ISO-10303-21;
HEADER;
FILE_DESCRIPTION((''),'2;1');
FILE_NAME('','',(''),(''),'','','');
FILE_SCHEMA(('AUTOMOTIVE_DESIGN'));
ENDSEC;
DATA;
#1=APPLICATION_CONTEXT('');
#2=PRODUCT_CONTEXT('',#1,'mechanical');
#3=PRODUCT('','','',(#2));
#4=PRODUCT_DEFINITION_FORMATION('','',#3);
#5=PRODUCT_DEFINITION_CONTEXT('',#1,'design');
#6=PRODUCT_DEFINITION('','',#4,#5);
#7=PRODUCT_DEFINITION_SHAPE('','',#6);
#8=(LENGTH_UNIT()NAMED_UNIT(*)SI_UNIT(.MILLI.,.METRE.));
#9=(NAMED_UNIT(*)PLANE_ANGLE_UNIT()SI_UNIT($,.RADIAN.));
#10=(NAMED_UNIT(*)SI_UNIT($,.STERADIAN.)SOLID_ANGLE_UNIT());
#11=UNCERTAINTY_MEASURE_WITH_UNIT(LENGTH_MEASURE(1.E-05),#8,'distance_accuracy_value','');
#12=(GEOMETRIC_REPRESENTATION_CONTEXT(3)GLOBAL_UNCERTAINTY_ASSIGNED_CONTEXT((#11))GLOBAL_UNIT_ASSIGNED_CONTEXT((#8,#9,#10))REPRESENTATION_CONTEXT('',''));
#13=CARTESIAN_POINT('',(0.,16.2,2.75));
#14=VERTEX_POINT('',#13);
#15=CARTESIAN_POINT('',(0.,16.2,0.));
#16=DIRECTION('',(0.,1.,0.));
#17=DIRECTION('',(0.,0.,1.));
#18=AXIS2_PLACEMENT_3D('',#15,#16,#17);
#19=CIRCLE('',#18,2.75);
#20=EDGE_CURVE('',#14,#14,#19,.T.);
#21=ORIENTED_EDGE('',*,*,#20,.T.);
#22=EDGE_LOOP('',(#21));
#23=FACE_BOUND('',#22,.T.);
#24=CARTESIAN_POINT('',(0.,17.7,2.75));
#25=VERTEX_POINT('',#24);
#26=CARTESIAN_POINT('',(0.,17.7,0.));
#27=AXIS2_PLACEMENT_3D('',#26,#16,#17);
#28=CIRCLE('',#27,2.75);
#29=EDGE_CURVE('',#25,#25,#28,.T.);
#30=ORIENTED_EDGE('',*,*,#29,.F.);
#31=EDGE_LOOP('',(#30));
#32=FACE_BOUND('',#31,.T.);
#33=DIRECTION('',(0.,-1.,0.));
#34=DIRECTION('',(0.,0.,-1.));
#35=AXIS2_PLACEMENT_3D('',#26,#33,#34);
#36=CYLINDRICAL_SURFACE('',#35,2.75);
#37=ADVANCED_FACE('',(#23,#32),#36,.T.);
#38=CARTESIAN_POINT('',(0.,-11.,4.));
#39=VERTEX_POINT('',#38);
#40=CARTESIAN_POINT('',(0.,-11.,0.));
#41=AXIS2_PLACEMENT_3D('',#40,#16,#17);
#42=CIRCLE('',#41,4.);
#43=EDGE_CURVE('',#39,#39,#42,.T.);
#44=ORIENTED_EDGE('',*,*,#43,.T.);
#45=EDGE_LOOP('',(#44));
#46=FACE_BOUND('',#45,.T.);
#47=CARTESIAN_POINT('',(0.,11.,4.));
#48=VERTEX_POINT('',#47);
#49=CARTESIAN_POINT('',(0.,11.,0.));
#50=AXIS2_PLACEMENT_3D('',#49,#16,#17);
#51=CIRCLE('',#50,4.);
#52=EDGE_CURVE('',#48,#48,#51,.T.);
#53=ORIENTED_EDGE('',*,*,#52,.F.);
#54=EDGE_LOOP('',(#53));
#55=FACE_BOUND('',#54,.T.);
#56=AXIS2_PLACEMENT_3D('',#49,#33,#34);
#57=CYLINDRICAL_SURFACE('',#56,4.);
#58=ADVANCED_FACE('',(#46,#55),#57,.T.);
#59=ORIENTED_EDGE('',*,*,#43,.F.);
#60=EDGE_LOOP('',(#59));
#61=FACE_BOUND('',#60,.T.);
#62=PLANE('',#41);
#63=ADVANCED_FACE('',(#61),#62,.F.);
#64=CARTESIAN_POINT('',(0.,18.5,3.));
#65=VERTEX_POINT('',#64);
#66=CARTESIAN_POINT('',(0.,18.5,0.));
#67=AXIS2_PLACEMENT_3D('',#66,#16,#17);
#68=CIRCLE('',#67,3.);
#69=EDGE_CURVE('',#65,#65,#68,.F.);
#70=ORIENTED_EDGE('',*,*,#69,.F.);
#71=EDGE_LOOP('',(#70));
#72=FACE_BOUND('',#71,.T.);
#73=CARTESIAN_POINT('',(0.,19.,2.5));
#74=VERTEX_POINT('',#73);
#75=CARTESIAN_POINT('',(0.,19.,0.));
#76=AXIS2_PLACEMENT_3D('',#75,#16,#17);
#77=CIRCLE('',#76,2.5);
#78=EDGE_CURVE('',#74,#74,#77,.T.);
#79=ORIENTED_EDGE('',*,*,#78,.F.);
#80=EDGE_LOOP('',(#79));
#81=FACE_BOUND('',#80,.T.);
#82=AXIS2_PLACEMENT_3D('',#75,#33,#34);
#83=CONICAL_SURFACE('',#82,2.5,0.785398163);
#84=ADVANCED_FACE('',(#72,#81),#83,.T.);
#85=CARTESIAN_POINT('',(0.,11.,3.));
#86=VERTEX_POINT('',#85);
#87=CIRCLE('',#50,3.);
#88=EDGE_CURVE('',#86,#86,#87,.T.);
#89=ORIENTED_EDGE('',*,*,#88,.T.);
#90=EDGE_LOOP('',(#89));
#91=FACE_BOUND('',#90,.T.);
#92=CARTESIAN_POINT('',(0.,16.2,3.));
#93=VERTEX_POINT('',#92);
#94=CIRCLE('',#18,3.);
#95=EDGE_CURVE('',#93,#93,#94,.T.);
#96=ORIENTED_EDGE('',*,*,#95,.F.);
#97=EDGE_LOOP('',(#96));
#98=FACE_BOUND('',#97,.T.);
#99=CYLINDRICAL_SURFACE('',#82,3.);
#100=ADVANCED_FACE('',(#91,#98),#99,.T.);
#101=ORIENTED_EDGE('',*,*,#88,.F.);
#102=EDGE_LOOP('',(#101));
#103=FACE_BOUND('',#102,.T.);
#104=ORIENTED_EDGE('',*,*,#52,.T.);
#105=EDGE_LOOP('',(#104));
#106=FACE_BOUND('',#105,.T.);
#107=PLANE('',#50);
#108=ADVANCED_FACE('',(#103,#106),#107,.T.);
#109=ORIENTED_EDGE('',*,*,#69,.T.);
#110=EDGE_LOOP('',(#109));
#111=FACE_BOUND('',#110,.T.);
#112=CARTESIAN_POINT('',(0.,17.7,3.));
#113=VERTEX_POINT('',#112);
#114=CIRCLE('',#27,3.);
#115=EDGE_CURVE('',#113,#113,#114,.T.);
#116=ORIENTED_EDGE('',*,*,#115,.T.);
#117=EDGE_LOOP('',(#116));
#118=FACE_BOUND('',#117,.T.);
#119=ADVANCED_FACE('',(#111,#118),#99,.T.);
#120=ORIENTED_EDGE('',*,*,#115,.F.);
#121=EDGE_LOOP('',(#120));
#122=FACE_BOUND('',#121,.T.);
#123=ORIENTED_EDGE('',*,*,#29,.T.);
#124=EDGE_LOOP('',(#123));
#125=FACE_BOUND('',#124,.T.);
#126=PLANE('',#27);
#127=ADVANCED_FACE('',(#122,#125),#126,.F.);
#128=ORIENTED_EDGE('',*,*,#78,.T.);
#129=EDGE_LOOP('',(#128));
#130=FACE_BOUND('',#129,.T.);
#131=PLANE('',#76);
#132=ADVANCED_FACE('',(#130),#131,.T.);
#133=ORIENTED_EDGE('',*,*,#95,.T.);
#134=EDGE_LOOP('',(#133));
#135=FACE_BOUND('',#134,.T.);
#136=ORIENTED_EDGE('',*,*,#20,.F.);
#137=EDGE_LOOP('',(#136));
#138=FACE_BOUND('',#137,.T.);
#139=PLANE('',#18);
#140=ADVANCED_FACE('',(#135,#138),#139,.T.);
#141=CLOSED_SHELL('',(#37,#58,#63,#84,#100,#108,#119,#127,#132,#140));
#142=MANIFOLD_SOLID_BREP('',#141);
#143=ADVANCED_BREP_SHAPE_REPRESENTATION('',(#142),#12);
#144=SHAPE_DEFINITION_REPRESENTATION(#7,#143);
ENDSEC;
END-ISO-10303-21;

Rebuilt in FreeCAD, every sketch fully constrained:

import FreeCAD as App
import Part
import Sketcher

V = App.Vector
Q = App.Units.Quantity


def edges_at(feature, points):
    """Names of the edges that pass closest to the given points."""
    edges = feature.Shape.Edges
    near = lambda p: min(range(len(edges)), key=lambda i: edges[i].distToShape(Part.Vertex(*p))[0])
    return sorted({f"Edge{near(p) + 1}" for p in points})

doc = App.newDocument("Part")
body = doc.addObject("PartDesign::Body", "Body")

# Sketch on XZ plane
sketch1 = body.newObject("Sketcher::SketchObject", "Sketch")
sketch1.AttachmentSupport = (doc.getObject("XZ_Plane"), [""])
sketch1.MapMode = "FlatFace"
sketch1.addGeometry(Part.Circle(V(0, 0, 0), V(0, 0, 1), 4), False)
sketch1.addConstraint([
    Sketcher.Constraint("Coincident", 0, 3, -1, 1),
    Sketcher.Constraint("Diameter", 0, Q("8 mm")),
])
pad1 = body.newObject("PartDesign::Pad", "Pad")
pad1.Profile = sketch1
pad1.Length = 22
pad1.Midplane = True

# Sketch on XZ plane
sketch2 = body.newObject("Sketcher::SketchObject", "Sketch001")
sketch2.AttachmentSupport = (doc.getObject("XZ_Plane"), [""])
sketch2.MapMode = "FlatFace"
sketch2.AttachmentOffset = App.Placement(V(0, 0, -11), App.Rotation())
sketch2.addGeometry(Part.Circle(V(0, 0, 0), V(0, 0, 1), 3), False)
sketch2.addConstraint([
    Sketcher.Constraint("Coincident", 0, 3, -1, 1),
    Sketcher.Constraint("Diameter", 0, Q("6 mm")),
])
pad2 = body.newObject("PartDesign::Pad", "Pad001")
pad2.Profile = sketch2
pad2.Length = 8
pad2.Reversed = True

# Sketch on XZ plane
sketch3 = body.newObject("Sketcher::SketchObject", "Sketch002")
sketch3.AttachmentSupport = (doc.getObject("XZ_Plane"), [""])
sketch3.MapMode = "FlatFace"
sketch3.AttachmentOffset = App.Placement(V(0, 0, -16.2), App.Rotation())
sketch3.addGeometry([
    Part.LineSegment(V(-8.206, -8.206, 0), V(-8.206, 8.206, 0)),  # 0
    Part.LineSegment(V(-8.206, 8.206, 0), V(8.206, 8.206, 0)),  # 1
    Part.LineSegment(V(8.206, 8.206, 0), V(8.206, -8.206, 0)),  # 2
    Part.LineSegment(V(8.206, -8.206, 0), V(-8.206, -8.206, 0)),  # 3
    Part.Circle(V(0, 0, 0), V(0, 0, 1), 2.75),  # 4
], False)
sketch3.addConstraint([
    Sketcher.Constraint("Coincident", 0, 2, 1, 1),
    Sketcher.Constraint("Coincident", 1, 2, 2, 1),
    Sketcher.Constraint("Coincident", 2, 2, 3, 1),
    Sketcher.Constraint("Coincident", 3, 2, 0, 1),
    Sketcher.Constraint("Vertical", 0),
    Sketcher.Constraint("Horizontal", 1),
    Sketcher.Constraint("Vertical", 2),
    Sketcher.Constraint("Horizontal", 3),
    Sketcher.Constraint("Coincident", 4, 3, -1, 1),
    Sketcher.Constraint("Symmetric", 0, 2, 2, 2, -1, 1),
    Sketcher.Constraint("Equal", 3, 0),
    Sketcher.Constraint("Diameter", 4, Q("5.5 mm")),
    Sketcher.Constraint("DistanceX", 1, 1, 1, 2, Q("16.412 mm")),
])
pocket1 = body.newObject("PartDesign::Pocket", "Pocket")
pocket1.Profile = sketch3
pocket1.Length = 1.5
doc.recompute()

chamfer = body.newObject("PartDesign::Chamfer", "Chamfer")
chamfer.Base = (pocket1, edges_at(pocket1, [(0, 19, -3)]))
chamfer.Size = 0.5

doc.recompute()
